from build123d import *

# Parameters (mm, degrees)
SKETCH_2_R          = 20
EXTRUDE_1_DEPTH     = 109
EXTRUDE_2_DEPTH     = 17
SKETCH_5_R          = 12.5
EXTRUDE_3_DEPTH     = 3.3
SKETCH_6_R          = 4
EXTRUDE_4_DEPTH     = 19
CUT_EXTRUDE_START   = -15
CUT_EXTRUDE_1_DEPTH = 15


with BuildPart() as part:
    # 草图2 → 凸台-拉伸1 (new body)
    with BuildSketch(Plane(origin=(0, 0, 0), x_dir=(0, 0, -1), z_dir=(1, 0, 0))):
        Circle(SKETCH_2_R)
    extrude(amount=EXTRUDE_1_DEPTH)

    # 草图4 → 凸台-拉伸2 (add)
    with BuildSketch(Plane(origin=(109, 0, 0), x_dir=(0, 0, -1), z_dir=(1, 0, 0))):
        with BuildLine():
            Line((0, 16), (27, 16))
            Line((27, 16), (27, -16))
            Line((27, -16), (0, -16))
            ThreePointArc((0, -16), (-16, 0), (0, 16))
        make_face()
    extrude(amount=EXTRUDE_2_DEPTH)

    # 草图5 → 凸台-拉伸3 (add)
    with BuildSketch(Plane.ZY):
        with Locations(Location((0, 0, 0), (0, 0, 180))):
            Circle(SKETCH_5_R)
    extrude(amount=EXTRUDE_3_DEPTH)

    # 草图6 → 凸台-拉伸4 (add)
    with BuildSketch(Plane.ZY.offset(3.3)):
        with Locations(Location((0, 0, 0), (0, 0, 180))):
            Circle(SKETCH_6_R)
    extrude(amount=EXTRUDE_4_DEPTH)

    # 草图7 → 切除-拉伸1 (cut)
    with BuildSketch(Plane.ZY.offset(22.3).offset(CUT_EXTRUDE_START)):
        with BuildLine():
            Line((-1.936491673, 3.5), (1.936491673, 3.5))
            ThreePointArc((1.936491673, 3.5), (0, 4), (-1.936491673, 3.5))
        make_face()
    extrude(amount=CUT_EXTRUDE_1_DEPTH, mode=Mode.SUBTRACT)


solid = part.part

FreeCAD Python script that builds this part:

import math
import FreeCAD as App
import Part
import Sketcher

V = App.Vector
Q = App.Units.Quantity

doc = App.newDocument("Part")
params = doc.addObject("Spreadsheet::Sheet", "Params")
for row, (alias, value) in enumerate([
    ("sketch1_diameter", "40 mm"),
    ("pad1_length", "109 mm"),
    ("sketch2_radius", "16 mm"),
    ("sketch2_height", "27 mm"),
    ("pad2_length", "17 mm"),
    ("sketch3_diameter", "25 mm"),
    ("pad3_length", "3.3 mm"),
    ("sketch4_diameter", "8 mm"),
    ("pad4_length", "19 mm"),
    ("sketch5_radius", "4 mm"),
    ("pocket1_length", "15 mm"),
], start=1):
    params.set(f"A{row}", alias)
    params.set(f"B{row}", "=" + value)
    params.setAlias(f"B{row}", alias)

body = doc.addObject("PartDesign::Body", "Body")

# Sketch on YZ plane
sketch1 = body.newObject("Sketcher::SketchObject", "Sketch")
sketch1.AttachmentSupport = (doc.getObject("YZ_Plane"), [""])
sketch1.MapMode = "FlatFace"
sketch1.addGeometry(Part.Circle(V(0, 0, 0), V(0, 0, 1), 20), False)
sketch1.addConstraint([
    Sketcher.Constraint("Coincident", 0, 3, -1, 1),
    Sketcher.Constraint("Diameter", 0, Q("40 mm")),
])
sketch1.setExpression("Constraints[1]", "Params.sketch1_diameter")
pad1 = body.newObject("PartDesign::Pad", "Pad")
pad1.Profile = sketch1
pad1.setExpression("Length", "Params.pad1_length")

# Sketch on YZ plane
sketch2 = body.newObject("Sketcher::SketchObject", "Sketch001")
sketch2.AttachmentSupport = (doc.getObject("YZ_Plane"), [""])
sketch2.MapMode = "FlatFace"
sketch2.AttachmentOffset = App.Placement(V(0, 0, 109), App.Rotation())
sketch2.addGeometry([
    Part.LineSegment(V(16, -27, 0), V(16, 0, 0)),
    Part.ArcOfCircle(Part.Circle(V(0, 0, 0), V(0, 0, 1), 16), math.radians(0), math.radians(180)),
    Part.LineSegment(V(-16, 0, 0), V(-16, -27, 0)),
    Part.LineSegment(V(-16, -27, 0), V(16, -27, 0)),
], False)
sketch2.addConstraint([
    Sketcher.Constraint("Tangent", 0, 2, 1, 1),
    Sketcher.Constraint("Tangent", 1, 2, 2, 1),
    Sketcher.Constraint("Coincident", 2, 2, 3, 1),
    Sketcher.Constraint("Coincident", 3, 2, 0, 1),
    Sketcher.Constraint("Vertical", 0),
    Sketcher.Constraint("Vertical", 2),
    Sketcher.Constraint("Horizontal", 3),
    Sketcher.Constraint("Coincident", 1, 3, -1, 1),
    Sketcher.Constraint("Radius", 1, Q("16 mm")),
    Sketcher.Constraint("DistanceY", 0, 1, 0, 2, Q("27 mm")),
])
sketch2.setExpression("Constraints[8]", "Params.sketch2_radius")
sketch2.setExpression("Constraints[9]", "Params.sketch2_height")
pad2 = body.newObject("PartDesign::Pad", "Pad001")
pad2.Profile = sketch2
pad2.setExpression("Length", "Params.pad2_length")

# Sketch on YZ plane
sketch3 = body.newObject("Sketcher::SketchObject", "Sketch002")
sketch3.AttachmentSupport = (doc.getObject("YZ_Plane"), [""])
sketch3.MapMode = "FlatFace"
sketch3.addGeometry(Part.Circle(V(0, 0, 0), V(0, 0, 1), 12), False)
sketch3.addConstraint([
    Sketcher.Constraint("Coincident", 0, 3, -1, 1),
    Sketcher.Constraint("Diameter", 0, Q("25 mm")),
])
sketch3.setExpression("Constraints[1]", "Params.sketch3_diameter")
pad3 = body.newObject("PartDesign::Pad", "Pad002")
pad3.Profile = sketch3
pad3.setExpression("Length", "Params.pad3_length")
pad3.Reversed = True

# Sketch on YZ plane
sketch4 = body.newObject("Sketcher::SketchObject", "Sketch003")
sketch4.AttachmentSupport = (doc.getObject("YZ_Plane"), [""])
sketch4.MapMode = "FlatFace"
sketch4.AttachmentOffset = App.Placement(V(0, 0, -3.3), App.Rotation())
sketch4.addGeometry(Part.Circle(V(0, 0, 0), V(0, 0, 1), 4), False)
sketch4.addConstraint([
    Sketcher.Constraint("Coincident", 0, 3, -1, 1),
    Sketcher.Constraint("Diameter", 0, Q("8 mm")),
])
sketch4.setExpression("Constraints[1]", "Params.sketch4_diameter")
pad4 = body.newObject("PartDesign::Pad", "Pad003")
pad4.Profile = sketch4
pad4.setExpression("Length", "Params.pad4_length")
pad4.Reversed = True

# Sketch on YZ plane
sketch5 = body.newObject("Sketcher::SketchObject", "Sketch004")
sketch5.AttachmentSupport = (doc.getObject("YZ_Plane"), [""])
sketch5.MapMode = "FlatFace"
sketch5.AttachmentOffset = App.Placement(V(0, 0, -7.3), App.Rotation())
sketch5.addGeometry([
    Part.LineSegment(V(3.5, -1.9, 0), V(3.5, 1.9, 0)),
    Part.ArcOfCircle(Part.Circle(V(0, 0, 0), V(0, 0, 1), 4), math.radians(-29), math.radians(29)),
], False)
sketch5.addConstraint([
    Sketcher.Constraint("Coincident", 0, 1, 1, 1),
    Sketcher.Constraint("Coincident", 1, 2, 0, 2),
    Sketcher.Constraint("Vertical", 0),
    Sketcher.Constraint("Coincident", 1, 3, -1, 1),
    Sketcher.Constraint("Radius", 1, Q("4 mm")),
    Sketcher.Constraint("DistanceX", -1, 1, 0, 1, Q("3.5 mm")),
])
sketch5.setExpression("Constraints[4]", "Params.sketch5_radius")
pocket1 = body.newObject("PartDesign::Pocket", "Pocket")
pocket1.Profile = sketch5
pocket1.setExpression("Length", "Params.pocket1_length")

doc.recompute()
